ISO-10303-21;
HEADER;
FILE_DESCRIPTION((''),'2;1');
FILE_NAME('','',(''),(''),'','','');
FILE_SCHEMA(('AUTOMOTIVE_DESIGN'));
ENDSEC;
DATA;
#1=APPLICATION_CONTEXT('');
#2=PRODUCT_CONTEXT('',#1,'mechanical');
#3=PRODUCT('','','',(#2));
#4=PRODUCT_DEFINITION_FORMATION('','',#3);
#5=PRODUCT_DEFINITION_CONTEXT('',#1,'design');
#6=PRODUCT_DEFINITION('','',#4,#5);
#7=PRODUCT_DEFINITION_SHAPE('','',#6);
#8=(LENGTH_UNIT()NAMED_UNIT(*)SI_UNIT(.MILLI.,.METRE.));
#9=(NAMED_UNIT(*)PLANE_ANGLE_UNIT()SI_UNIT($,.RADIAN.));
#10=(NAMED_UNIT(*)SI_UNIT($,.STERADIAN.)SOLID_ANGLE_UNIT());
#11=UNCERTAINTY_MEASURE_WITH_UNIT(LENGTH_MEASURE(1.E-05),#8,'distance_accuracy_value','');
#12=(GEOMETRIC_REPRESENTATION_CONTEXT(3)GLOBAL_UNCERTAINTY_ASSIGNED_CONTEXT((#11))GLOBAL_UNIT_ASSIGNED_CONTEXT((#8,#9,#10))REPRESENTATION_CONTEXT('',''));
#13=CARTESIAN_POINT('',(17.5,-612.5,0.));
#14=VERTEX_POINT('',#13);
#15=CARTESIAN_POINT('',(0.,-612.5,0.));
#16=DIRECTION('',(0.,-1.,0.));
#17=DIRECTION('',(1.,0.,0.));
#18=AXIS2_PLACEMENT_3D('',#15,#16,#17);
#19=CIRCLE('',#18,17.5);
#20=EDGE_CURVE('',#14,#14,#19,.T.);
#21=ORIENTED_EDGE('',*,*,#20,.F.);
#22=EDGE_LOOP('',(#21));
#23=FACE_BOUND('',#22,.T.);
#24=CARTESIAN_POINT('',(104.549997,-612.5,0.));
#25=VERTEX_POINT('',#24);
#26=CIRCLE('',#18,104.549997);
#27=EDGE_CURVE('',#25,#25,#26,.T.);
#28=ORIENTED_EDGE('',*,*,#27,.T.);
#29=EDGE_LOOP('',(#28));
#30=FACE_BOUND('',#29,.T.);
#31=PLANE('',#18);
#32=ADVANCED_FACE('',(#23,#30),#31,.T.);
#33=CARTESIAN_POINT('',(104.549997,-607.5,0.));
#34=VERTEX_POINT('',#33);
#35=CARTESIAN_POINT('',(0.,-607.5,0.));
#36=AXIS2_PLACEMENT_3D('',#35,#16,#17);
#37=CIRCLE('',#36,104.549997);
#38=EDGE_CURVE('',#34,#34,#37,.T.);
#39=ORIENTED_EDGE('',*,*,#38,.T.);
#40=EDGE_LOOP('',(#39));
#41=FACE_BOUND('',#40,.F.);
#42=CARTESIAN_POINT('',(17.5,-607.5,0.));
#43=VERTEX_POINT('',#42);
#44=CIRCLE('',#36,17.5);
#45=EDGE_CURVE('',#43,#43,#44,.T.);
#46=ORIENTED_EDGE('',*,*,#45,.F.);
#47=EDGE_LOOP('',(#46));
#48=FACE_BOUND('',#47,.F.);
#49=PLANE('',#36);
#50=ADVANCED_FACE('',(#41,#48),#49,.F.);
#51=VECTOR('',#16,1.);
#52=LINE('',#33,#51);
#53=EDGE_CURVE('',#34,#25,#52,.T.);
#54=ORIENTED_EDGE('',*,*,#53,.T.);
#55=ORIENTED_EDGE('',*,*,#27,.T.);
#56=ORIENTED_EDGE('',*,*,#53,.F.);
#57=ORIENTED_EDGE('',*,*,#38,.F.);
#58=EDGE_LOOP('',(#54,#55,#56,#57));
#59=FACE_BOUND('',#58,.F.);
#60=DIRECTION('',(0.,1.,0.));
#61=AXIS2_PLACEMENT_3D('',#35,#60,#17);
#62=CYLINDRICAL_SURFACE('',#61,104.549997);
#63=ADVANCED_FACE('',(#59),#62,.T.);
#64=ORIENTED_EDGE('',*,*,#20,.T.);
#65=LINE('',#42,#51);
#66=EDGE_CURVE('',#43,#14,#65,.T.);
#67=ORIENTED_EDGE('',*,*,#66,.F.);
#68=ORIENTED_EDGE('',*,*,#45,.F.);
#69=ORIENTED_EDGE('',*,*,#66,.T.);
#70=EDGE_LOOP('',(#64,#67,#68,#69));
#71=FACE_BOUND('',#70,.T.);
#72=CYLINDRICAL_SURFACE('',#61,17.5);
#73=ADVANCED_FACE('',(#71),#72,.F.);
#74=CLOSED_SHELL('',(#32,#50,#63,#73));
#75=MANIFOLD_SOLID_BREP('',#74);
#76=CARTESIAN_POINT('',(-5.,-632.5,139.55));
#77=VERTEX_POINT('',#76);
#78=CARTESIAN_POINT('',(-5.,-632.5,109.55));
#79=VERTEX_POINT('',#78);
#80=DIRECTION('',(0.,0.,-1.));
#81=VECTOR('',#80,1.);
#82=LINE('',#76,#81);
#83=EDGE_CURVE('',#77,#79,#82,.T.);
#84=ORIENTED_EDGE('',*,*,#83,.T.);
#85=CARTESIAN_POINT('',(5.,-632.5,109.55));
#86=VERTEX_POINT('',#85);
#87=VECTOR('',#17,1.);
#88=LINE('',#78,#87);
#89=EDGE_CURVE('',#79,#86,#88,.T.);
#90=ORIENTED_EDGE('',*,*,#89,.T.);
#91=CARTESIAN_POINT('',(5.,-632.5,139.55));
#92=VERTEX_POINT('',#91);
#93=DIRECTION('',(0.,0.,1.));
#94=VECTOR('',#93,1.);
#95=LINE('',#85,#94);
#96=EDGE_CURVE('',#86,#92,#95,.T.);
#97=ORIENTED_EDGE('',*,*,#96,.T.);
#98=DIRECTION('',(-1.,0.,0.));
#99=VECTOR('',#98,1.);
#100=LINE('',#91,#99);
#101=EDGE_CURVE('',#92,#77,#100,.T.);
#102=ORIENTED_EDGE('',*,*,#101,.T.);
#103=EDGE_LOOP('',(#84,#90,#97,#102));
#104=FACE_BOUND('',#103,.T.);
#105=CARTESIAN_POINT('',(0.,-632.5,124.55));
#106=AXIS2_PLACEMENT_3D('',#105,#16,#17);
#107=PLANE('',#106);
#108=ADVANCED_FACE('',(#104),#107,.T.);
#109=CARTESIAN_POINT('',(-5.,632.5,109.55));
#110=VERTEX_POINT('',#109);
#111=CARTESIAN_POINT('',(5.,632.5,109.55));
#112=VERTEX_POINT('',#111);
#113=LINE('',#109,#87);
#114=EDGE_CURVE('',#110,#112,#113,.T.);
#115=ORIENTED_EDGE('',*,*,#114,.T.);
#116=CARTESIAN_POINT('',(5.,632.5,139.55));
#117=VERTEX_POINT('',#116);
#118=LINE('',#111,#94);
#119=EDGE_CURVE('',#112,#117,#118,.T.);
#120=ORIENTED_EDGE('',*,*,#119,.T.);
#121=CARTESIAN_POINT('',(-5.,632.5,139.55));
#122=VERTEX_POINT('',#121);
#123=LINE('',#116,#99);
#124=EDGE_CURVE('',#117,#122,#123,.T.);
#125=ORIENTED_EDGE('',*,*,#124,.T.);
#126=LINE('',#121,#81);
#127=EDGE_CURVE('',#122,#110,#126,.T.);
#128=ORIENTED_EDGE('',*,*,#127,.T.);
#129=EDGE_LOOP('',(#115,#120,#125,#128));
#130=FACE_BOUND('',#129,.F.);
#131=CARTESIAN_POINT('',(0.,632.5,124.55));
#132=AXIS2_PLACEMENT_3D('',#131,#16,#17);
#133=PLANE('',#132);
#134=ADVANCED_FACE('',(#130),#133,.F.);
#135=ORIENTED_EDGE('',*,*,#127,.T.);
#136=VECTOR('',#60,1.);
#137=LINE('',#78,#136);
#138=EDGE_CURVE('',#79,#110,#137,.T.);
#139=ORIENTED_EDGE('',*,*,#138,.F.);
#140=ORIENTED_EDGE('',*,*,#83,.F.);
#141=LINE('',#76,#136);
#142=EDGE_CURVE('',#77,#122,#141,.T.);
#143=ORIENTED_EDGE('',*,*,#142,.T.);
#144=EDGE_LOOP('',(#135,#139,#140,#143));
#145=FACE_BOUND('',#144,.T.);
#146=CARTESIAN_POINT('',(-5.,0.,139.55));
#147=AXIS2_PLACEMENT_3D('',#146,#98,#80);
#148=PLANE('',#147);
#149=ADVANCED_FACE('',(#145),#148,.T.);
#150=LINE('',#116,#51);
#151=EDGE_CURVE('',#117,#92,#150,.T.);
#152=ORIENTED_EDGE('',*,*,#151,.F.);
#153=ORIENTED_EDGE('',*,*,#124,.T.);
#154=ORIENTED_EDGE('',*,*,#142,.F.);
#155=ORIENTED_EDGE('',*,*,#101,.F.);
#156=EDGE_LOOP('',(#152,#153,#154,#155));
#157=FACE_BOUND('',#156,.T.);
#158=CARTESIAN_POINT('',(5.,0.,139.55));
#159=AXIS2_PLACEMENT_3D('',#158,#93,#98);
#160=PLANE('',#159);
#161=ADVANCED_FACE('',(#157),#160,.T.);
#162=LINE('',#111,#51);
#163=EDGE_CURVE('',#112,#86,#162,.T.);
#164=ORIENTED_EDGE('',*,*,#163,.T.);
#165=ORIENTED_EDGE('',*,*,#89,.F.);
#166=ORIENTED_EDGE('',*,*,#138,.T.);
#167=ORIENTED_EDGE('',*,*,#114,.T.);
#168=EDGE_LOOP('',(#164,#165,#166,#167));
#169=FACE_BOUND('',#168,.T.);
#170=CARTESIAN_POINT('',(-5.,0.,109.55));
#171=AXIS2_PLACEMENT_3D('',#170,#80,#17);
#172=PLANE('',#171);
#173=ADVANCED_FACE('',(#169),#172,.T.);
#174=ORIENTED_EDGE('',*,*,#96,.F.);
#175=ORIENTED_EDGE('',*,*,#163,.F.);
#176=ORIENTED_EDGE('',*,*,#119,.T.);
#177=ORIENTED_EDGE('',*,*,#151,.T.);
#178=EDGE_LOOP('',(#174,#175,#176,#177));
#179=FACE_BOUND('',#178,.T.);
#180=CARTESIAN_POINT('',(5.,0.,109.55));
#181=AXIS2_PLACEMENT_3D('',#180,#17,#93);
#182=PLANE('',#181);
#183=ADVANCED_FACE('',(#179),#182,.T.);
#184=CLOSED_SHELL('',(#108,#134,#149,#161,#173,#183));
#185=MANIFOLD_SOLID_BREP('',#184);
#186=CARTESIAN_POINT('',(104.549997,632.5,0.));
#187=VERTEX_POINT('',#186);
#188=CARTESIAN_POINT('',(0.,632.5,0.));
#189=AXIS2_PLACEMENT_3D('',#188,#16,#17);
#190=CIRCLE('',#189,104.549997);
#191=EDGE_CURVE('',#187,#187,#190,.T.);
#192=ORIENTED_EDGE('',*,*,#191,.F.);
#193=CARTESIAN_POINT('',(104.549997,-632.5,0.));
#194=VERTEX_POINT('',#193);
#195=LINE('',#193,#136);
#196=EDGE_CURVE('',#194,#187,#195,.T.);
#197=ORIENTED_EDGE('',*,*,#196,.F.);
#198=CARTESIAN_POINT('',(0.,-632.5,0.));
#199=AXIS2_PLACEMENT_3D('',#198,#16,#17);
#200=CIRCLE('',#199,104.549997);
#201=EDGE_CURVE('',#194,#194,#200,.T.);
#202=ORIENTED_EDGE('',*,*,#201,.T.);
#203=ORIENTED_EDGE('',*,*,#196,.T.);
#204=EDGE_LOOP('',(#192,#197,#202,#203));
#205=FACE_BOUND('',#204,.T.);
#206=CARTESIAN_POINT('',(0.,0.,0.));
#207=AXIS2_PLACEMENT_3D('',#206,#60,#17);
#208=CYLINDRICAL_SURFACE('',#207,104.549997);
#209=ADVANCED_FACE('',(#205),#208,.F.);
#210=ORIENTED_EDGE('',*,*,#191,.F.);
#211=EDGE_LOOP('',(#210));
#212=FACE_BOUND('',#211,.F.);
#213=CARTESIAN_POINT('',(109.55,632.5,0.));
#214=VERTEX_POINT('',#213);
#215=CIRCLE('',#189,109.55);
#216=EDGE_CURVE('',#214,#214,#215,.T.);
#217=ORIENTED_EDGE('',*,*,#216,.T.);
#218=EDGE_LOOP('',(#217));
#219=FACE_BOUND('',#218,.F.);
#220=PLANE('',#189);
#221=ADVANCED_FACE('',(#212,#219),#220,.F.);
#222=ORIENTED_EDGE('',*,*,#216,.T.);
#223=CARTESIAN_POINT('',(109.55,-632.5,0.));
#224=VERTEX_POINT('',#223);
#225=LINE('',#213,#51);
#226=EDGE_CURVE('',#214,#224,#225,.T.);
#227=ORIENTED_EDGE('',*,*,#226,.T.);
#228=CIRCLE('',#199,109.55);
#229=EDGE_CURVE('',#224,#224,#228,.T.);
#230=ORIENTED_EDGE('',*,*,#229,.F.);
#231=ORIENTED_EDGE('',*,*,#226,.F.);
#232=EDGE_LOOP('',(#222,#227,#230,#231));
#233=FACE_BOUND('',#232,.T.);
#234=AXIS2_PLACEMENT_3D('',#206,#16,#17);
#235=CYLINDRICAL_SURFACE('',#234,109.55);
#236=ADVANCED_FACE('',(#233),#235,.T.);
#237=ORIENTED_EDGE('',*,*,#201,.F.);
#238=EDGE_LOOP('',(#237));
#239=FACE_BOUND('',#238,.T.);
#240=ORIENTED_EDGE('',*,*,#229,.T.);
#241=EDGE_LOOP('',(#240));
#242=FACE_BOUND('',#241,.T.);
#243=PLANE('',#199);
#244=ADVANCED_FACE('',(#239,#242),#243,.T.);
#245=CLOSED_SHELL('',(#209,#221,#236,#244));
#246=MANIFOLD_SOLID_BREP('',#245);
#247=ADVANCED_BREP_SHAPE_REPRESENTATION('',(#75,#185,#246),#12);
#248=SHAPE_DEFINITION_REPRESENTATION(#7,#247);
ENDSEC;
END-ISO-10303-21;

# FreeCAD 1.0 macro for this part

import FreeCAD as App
import Part
import Sketcher

V = App.Vector
Q = App.Units.Quantity


def add_polygon(sketch, points):
    """Adds a closed chain of lines whose ends are joined by coincident constraints."""
    first, n = sketch.GeometryCount, len(points)
    for a, b in zip(points, points[1:] + points[:1]):
        sketch.addGeometry(Part.LineSegment(App.Vector(*a, 0), App.Vector(*b, 0)), False)
    for i in range(n):
        sketch.addConstraint(Sketcher.Constraint("Coincident", first + i, 2, first + (i + 1) % n, 1))

doc = App.newDocument("Part")
body = doc.addObject("PartDesign::Body", "Body")

sketch1 = doc.addObject("Sketcher::SketchObject", "Sketch")
body.addObject(sketch1)
sketch1.AttachmentSupport = (doc.XZ_Plane, [""])
sketch1.MapMode = "FlatFace"
sketch1.addGeometry([
    Part.Circle(V(0, 0, 0), V(0, 0, 1), 109.55),
    Part.Circle(V(0, 0, 0), V(0, 0, 1), 104.549997),
], False)
sketch1.addConstraint([
    Sketcher.Constraint("Coincident", 0, 3, -1, 1),
    Sketcher.Constraint("Coincident", 1, 3, -1, 1),
    Sketcher.Constraint("Diameter", 0, Q("219.1 mm")),
    Sketcher.Constraint("Diameter", 1, Q("209.099993 mm")),
])
pad1 = doc.addObject("PartDesign::Pad", "Pad")
body.addObject(pad1)
pad1.Profile = sketch1
pad1.Length = 1265
pad1.Midplane = True
body2 = doc.addObject("PartDesign::Body", "Body001")

sketch2 = doc.addObject("Sketcher::SketchObject", "Sketch001")
body2.addObject(sketch2)
sketch2.AttachmentSupport = (doc.getObject("XZ_Plane001"), [""])
sketch2.MapMode = "FlatFace"
sketch2.AttachmentOffset = App.Placement(V(0, 0, 607.5), App.Rotation())
sketch2.addGeometry([
    Part.Circle(V(0, 0, 0), V(0, 0, 1), 104.549997),
    Part.Circle(V(0, 0, 0), V(0, 0, 1), 17.5),
], False)
sketch2.addConstraint([
    Sketcher.Constraint("Coincident", 0, 3, -1, 1),
    Sketcher.Constraint("Coincident", 1, 3, -1, 1),
    Sketcher.Constraint("Diameter", 1, Q("35 mm")),
    Sketcher.Constraint("Diameter", 0, Q("209.099993 mm")),
])
pad2 = doc.addObject("PartDesign::Pad", "Pad001")
body2.addObject(pad2)
pad2.Profile = sketch2
pad2.Length = 5
body3 = doc.addObject("PartDesign::Body", "Body002")

sketch3 = doc.addObject("Sketcher::SketchObject", "Sketch002")
body3.addObject(sketch3)
sketch3.AttachmentSupport = (doc.getObject("XZ_Plane002"), [""])
sketch3.MapMode = "FlatFace"
add_polygon(sketch3, [(-5, 109.55), (5, 109.55), (5, 139.55), (-5, 139.55)])
sketch3.addConstraint([
    Sketcher.Constraint("Horizontal", 0),
    Sketcher.Constraint("Vertical", 1),
    Sketcher.Constraint("Horizontal", 2),
    Sketcher.Constraint("Vertical", 3),
    Sketcher.Constraint("DistanceX", 0, 1, 0, 2, Q("10 mm")),
    Sketcher.Constraint("DistanceY", 1, 1, 1, 2, Q("30 mm")),
    Sketcher.Constraint("DistanceX", -1, 1, 0, 2, Q("5 mm")),
    Sketcher.Constraint("DistanceY", -1, 1, 0, 2, Q("109.55 mm")),
])
pad3 = doc.addObject("PartDesign::Pad", "Pad002")
body3.addObject(pad3)
pad3.Profile = sketch3
pad3.Type = "TwoLengths"
pad3.Length = 632.5
pad3.Length2 = 632.5

doc.recompute()
